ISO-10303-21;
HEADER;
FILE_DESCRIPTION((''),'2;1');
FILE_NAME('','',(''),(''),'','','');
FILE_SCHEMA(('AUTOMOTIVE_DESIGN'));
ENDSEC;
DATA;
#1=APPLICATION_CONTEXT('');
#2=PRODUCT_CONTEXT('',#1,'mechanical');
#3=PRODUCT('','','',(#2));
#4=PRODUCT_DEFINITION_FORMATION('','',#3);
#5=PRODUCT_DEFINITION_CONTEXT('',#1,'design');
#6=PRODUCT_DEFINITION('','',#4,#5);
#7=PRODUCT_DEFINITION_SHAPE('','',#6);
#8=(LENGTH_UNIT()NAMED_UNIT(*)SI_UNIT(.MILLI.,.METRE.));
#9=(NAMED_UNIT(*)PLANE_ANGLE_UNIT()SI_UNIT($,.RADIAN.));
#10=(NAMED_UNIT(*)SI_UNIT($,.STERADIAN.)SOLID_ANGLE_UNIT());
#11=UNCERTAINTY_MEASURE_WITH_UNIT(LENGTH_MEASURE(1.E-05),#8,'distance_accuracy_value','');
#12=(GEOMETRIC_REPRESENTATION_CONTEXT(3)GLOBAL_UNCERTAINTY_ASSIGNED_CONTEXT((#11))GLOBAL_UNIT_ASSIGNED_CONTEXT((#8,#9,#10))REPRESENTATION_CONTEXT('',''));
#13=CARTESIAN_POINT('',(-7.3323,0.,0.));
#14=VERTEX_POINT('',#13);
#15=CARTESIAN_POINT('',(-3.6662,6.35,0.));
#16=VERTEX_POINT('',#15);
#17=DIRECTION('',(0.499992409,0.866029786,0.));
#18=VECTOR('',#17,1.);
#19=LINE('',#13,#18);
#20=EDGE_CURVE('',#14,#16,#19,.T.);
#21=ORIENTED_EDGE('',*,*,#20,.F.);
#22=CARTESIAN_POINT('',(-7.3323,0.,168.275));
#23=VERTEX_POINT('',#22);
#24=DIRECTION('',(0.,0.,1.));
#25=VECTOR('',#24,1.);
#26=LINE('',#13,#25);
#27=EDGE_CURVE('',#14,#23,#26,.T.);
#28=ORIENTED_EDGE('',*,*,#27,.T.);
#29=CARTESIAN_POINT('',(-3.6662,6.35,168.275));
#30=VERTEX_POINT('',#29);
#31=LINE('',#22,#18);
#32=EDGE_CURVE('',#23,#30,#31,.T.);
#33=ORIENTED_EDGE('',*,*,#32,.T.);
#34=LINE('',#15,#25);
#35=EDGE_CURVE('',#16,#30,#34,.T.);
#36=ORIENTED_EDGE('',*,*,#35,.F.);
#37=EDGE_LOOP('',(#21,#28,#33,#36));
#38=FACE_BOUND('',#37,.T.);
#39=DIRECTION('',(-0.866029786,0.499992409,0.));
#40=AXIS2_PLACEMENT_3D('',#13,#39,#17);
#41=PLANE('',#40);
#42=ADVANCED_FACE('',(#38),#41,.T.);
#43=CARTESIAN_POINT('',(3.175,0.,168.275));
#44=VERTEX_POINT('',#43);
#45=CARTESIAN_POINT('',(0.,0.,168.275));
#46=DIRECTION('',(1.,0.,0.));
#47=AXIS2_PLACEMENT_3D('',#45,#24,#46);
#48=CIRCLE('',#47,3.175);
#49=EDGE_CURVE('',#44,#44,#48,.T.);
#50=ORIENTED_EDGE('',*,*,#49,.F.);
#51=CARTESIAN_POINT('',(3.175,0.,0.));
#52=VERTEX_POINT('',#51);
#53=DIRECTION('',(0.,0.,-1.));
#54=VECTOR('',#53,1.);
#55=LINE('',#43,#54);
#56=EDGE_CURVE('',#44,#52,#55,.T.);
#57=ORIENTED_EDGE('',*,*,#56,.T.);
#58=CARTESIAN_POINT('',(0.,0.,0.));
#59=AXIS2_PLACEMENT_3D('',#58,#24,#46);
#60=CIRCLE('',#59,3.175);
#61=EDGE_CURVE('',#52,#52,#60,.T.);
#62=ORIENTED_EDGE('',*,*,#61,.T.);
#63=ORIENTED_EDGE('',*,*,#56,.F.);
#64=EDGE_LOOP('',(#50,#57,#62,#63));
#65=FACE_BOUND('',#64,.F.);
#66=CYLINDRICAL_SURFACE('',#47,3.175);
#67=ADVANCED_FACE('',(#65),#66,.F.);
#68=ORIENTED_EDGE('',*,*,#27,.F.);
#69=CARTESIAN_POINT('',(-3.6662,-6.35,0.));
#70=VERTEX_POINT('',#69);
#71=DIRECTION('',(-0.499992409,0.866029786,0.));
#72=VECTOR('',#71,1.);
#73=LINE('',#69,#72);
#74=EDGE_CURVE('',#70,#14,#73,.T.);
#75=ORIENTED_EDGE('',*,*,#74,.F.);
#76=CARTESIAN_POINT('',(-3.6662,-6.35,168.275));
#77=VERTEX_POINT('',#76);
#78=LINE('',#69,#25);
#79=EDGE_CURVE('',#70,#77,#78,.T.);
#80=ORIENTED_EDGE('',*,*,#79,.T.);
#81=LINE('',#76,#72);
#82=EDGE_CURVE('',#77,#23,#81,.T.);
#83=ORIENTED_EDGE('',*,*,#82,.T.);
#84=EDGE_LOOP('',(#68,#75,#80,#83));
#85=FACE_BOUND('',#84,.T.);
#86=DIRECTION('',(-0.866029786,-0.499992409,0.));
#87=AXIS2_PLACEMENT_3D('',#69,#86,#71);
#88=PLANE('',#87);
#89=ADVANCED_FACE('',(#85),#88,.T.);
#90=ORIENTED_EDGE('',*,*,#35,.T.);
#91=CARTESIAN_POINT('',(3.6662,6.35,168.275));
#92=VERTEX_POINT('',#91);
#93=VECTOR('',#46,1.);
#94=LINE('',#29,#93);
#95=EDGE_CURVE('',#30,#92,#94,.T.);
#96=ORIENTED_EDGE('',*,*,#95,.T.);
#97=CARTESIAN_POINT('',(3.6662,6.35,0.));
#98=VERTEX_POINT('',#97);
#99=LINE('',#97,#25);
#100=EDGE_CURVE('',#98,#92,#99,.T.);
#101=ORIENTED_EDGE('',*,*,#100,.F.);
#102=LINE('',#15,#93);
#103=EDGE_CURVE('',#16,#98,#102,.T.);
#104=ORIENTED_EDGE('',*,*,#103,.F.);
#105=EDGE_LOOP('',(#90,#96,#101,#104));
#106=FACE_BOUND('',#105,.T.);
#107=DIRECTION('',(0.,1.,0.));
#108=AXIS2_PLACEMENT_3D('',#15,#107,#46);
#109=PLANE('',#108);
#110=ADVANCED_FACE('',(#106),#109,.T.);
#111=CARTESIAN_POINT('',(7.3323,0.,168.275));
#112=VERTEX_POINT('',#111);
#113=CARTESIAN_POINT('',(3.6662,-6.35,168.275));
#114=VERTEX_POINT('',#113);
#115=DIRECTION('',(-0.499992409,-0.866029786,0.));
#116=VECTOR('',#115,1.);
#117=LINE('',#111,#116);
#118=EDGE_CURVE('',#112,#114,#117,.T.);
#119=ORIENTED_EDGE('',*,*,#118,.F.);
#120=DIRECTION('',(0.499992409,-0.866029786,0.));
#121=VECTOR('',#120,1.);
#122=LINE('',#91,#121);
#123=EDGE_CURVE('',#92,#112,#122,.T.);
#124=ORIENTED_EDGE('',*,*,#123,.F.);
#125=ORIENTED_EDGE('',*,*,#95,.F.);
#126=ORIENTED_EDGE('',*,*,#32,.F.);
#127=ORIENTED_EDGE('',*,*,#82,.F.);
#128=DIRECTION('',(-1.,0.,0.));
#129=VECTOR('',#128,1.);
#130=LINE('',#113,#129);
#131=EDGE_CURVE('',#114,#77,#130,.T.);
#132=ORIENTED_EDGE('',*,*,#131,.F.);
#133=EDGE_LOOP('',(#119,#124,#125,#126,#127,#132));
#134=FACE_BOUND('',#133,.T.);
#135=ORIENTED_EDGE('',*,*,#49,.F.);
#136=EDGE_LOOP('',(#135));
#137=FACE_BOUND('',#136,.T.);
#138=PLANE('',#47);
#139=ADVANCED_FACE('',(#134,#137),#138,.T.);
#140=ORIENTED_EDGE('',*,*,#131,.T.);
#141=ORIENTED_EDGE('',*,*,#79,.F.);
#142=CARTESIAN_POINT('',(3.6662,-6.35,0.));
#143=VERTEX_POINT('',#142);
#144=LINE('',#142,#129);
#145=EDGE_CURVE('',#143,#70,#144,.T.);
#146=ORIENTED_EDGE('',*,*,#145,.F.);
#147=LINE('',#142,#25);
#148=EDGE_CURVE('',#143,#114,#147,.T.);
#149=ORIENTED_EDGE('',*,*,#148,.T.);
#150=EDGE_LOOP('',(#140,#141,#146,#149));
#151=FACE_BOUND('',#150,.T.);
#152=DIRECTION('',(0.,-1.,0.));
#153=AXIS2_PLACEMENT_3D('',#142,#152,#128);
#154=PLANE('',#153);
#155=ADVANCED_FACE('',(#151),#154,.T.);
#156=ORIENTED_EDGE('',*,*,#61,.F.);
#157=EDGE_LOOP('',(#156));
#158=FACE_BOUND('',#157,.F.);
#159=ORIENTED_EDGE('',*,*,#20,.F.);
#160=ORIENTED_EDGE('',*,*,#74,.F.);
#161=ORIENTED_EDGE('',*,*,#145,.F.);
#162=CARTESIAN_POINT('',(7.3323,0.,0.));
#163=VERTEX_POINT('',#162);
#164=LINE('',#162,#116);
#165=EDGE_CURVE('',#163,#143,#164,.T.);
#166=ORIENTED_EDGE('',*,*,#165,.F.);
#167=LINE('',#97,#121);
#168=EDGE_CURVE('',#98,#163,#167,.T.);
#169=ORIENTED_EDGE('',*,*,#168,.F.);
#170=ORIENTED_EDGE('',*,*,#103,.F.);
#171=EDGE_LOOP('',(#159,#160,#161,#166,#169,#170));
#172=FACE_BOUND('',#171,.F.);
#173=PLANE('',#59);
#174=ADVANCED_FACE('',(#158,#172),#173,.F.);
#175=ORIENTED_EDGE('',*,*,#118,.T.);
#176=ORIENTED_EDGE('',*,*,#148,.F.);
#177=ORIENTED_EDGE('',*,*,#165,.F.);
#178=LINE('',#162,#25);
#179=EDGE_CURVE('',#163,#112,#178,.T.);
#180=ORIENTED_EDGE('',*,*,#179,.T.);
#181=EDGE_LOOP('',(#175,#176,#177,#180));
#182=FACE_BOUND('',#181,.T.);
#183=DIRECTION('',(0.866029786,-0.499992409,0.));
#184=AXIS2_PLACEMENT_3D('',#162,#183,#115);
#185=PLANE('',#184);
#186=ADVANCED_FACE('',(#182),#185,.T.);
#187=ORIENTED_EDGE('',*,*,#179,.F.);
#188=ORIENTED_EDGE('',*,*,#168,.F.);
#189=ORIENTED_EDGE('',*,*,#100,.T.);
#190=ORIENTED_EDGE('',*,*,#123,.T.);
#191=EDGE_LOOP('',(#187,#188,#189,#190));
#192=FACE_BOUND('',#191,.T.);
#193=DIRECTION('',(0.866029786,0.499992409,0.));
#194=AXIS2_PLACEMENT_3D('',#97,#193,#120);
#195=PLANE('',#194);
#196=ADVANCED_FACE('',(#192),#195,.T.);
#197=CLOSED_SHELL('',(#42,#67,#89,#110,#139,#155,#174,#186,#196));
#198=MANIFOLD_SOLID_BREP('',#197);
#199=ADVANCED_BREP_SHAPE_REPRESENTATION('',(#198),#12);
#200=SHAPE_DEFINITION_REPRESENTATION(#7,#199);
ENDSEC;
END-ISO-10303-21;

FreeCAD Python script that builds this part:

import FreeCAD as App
import Part
import Sketcher

V = App.Vector
Q = App.Units.Quantity

doc = App.newDocument("Part")
body = doc.addObject("PartDesign::Body", "Body")

# Sketch on XY plane
sketch1 = doc.addObject("Sketcher::SketchObject", "Sketch")
body.addObject(sketch1)
sketch1.AttachmentSupport = (doc.XY_Plane, [""])
sketch1.MapMode = "FlatFace"
sketch1.addGeometry([
    Part.LineSegment(V(3.6662, -6.35, 0), V(7.3323, 0, 0)),  # 0
    Part.LineSegment(V(7.3323, 0, 0), V(3.6662, 6.35, 0)),  # 1
    Part.LineSegment(V(3.6662, 6.35, 0), V(-3.6662, 6.35, 0)),  # 2
    Part.LineSegment(V(-3.6662, 6.35, 0), V(-7.3323, 0, 0)),  # 3
    Part.LineSegment(V(-7.3323, 0, 0), V(-3.6662, -6.35, 0)),  # 4
    Part.LineSegment(V(-3.6662, -6.35, 0), V(3.6662, -6.35, 0)),  # 5
], False)
sketch1.addConstraint([
    Sketcher.Constraint("Coincident", 0, 2, 1, 1),
    Sketcher.Constraint("Coincident", 1, 2, 2, 1),
    Sketcher.Constraint("Coincident", 2, 2, 3, 1),
    Sketcher.Constraint("Coincident", 3, 2, 4, 1),
    Sketcher.Constraint("Coincident", 4, 2, 5, 1),
    Sketcher.Constraint("Coincident", 5, 2, 0, 1),
    Sketcher.Constraint("Horizontal", 2),
    Sketcher.Constraint("Horizontal", 5),
    Sketcher.Constraint("Symmetric", 0, 2, 3, 2, -1, 1),
    Sketcher.Constraint("Symmetric", 1, 2, 4, 2, -1, 1),
    Sketcher.Constraint("PointOnObject", 0, 2, -1),
    Sketcher.Constraint("Parallel", 0, 3),
    Sketcher.Constraint("Vertical", 2, 2, 4, 2),
    Sketcher.Constraint("DistanceY", 4, 2, 2, 2, Q("0.5 in")),
    Sketcher.Constraint("Angle", 0, Q("60.0005 deg")),
    Sketcher.Constraint("DistanceX", 2, 2, 0, 2, Q("0.433 in")),
])
pad1 = doc.addObject("PartDesign::Pad", "Pad")
body.addObject(pad1)
pad1.Profile = sketch1
pad1.Length = Q("6.625 in")

# Sketch on XY plane
sketch2 = doc.addObject("Sketcher::SketchObject", "Sketch001")
body.addObject(sketch2)
sketch2.AttachmentSupport = (doc.XY_Plane, [""])
sketch2.MapMode = "FlatFace"
sketch2.AttachmentOffset = App.Placement(V(0, 0, 6.625 * 25.4), App.Rotation())
sketch2.addGeometry(Part.Circle(V(0, 0, 0), V(0, 0, 1), 3.175), False)
sketch2.addConstraint([
    Sketcher.Constraint("Coincident", 0, 3, -1, 1),
    Sketcher.Constraint("Diameter", 0, Q("0.25 in")),
])
pocket1 = doc.addObject("PartDesign::Pocket", "Pocket")
body.addObject(pocket1)
pocket1.Profile = sketch2
pocket1.Length = Q("8 in")

doc.recompute()
